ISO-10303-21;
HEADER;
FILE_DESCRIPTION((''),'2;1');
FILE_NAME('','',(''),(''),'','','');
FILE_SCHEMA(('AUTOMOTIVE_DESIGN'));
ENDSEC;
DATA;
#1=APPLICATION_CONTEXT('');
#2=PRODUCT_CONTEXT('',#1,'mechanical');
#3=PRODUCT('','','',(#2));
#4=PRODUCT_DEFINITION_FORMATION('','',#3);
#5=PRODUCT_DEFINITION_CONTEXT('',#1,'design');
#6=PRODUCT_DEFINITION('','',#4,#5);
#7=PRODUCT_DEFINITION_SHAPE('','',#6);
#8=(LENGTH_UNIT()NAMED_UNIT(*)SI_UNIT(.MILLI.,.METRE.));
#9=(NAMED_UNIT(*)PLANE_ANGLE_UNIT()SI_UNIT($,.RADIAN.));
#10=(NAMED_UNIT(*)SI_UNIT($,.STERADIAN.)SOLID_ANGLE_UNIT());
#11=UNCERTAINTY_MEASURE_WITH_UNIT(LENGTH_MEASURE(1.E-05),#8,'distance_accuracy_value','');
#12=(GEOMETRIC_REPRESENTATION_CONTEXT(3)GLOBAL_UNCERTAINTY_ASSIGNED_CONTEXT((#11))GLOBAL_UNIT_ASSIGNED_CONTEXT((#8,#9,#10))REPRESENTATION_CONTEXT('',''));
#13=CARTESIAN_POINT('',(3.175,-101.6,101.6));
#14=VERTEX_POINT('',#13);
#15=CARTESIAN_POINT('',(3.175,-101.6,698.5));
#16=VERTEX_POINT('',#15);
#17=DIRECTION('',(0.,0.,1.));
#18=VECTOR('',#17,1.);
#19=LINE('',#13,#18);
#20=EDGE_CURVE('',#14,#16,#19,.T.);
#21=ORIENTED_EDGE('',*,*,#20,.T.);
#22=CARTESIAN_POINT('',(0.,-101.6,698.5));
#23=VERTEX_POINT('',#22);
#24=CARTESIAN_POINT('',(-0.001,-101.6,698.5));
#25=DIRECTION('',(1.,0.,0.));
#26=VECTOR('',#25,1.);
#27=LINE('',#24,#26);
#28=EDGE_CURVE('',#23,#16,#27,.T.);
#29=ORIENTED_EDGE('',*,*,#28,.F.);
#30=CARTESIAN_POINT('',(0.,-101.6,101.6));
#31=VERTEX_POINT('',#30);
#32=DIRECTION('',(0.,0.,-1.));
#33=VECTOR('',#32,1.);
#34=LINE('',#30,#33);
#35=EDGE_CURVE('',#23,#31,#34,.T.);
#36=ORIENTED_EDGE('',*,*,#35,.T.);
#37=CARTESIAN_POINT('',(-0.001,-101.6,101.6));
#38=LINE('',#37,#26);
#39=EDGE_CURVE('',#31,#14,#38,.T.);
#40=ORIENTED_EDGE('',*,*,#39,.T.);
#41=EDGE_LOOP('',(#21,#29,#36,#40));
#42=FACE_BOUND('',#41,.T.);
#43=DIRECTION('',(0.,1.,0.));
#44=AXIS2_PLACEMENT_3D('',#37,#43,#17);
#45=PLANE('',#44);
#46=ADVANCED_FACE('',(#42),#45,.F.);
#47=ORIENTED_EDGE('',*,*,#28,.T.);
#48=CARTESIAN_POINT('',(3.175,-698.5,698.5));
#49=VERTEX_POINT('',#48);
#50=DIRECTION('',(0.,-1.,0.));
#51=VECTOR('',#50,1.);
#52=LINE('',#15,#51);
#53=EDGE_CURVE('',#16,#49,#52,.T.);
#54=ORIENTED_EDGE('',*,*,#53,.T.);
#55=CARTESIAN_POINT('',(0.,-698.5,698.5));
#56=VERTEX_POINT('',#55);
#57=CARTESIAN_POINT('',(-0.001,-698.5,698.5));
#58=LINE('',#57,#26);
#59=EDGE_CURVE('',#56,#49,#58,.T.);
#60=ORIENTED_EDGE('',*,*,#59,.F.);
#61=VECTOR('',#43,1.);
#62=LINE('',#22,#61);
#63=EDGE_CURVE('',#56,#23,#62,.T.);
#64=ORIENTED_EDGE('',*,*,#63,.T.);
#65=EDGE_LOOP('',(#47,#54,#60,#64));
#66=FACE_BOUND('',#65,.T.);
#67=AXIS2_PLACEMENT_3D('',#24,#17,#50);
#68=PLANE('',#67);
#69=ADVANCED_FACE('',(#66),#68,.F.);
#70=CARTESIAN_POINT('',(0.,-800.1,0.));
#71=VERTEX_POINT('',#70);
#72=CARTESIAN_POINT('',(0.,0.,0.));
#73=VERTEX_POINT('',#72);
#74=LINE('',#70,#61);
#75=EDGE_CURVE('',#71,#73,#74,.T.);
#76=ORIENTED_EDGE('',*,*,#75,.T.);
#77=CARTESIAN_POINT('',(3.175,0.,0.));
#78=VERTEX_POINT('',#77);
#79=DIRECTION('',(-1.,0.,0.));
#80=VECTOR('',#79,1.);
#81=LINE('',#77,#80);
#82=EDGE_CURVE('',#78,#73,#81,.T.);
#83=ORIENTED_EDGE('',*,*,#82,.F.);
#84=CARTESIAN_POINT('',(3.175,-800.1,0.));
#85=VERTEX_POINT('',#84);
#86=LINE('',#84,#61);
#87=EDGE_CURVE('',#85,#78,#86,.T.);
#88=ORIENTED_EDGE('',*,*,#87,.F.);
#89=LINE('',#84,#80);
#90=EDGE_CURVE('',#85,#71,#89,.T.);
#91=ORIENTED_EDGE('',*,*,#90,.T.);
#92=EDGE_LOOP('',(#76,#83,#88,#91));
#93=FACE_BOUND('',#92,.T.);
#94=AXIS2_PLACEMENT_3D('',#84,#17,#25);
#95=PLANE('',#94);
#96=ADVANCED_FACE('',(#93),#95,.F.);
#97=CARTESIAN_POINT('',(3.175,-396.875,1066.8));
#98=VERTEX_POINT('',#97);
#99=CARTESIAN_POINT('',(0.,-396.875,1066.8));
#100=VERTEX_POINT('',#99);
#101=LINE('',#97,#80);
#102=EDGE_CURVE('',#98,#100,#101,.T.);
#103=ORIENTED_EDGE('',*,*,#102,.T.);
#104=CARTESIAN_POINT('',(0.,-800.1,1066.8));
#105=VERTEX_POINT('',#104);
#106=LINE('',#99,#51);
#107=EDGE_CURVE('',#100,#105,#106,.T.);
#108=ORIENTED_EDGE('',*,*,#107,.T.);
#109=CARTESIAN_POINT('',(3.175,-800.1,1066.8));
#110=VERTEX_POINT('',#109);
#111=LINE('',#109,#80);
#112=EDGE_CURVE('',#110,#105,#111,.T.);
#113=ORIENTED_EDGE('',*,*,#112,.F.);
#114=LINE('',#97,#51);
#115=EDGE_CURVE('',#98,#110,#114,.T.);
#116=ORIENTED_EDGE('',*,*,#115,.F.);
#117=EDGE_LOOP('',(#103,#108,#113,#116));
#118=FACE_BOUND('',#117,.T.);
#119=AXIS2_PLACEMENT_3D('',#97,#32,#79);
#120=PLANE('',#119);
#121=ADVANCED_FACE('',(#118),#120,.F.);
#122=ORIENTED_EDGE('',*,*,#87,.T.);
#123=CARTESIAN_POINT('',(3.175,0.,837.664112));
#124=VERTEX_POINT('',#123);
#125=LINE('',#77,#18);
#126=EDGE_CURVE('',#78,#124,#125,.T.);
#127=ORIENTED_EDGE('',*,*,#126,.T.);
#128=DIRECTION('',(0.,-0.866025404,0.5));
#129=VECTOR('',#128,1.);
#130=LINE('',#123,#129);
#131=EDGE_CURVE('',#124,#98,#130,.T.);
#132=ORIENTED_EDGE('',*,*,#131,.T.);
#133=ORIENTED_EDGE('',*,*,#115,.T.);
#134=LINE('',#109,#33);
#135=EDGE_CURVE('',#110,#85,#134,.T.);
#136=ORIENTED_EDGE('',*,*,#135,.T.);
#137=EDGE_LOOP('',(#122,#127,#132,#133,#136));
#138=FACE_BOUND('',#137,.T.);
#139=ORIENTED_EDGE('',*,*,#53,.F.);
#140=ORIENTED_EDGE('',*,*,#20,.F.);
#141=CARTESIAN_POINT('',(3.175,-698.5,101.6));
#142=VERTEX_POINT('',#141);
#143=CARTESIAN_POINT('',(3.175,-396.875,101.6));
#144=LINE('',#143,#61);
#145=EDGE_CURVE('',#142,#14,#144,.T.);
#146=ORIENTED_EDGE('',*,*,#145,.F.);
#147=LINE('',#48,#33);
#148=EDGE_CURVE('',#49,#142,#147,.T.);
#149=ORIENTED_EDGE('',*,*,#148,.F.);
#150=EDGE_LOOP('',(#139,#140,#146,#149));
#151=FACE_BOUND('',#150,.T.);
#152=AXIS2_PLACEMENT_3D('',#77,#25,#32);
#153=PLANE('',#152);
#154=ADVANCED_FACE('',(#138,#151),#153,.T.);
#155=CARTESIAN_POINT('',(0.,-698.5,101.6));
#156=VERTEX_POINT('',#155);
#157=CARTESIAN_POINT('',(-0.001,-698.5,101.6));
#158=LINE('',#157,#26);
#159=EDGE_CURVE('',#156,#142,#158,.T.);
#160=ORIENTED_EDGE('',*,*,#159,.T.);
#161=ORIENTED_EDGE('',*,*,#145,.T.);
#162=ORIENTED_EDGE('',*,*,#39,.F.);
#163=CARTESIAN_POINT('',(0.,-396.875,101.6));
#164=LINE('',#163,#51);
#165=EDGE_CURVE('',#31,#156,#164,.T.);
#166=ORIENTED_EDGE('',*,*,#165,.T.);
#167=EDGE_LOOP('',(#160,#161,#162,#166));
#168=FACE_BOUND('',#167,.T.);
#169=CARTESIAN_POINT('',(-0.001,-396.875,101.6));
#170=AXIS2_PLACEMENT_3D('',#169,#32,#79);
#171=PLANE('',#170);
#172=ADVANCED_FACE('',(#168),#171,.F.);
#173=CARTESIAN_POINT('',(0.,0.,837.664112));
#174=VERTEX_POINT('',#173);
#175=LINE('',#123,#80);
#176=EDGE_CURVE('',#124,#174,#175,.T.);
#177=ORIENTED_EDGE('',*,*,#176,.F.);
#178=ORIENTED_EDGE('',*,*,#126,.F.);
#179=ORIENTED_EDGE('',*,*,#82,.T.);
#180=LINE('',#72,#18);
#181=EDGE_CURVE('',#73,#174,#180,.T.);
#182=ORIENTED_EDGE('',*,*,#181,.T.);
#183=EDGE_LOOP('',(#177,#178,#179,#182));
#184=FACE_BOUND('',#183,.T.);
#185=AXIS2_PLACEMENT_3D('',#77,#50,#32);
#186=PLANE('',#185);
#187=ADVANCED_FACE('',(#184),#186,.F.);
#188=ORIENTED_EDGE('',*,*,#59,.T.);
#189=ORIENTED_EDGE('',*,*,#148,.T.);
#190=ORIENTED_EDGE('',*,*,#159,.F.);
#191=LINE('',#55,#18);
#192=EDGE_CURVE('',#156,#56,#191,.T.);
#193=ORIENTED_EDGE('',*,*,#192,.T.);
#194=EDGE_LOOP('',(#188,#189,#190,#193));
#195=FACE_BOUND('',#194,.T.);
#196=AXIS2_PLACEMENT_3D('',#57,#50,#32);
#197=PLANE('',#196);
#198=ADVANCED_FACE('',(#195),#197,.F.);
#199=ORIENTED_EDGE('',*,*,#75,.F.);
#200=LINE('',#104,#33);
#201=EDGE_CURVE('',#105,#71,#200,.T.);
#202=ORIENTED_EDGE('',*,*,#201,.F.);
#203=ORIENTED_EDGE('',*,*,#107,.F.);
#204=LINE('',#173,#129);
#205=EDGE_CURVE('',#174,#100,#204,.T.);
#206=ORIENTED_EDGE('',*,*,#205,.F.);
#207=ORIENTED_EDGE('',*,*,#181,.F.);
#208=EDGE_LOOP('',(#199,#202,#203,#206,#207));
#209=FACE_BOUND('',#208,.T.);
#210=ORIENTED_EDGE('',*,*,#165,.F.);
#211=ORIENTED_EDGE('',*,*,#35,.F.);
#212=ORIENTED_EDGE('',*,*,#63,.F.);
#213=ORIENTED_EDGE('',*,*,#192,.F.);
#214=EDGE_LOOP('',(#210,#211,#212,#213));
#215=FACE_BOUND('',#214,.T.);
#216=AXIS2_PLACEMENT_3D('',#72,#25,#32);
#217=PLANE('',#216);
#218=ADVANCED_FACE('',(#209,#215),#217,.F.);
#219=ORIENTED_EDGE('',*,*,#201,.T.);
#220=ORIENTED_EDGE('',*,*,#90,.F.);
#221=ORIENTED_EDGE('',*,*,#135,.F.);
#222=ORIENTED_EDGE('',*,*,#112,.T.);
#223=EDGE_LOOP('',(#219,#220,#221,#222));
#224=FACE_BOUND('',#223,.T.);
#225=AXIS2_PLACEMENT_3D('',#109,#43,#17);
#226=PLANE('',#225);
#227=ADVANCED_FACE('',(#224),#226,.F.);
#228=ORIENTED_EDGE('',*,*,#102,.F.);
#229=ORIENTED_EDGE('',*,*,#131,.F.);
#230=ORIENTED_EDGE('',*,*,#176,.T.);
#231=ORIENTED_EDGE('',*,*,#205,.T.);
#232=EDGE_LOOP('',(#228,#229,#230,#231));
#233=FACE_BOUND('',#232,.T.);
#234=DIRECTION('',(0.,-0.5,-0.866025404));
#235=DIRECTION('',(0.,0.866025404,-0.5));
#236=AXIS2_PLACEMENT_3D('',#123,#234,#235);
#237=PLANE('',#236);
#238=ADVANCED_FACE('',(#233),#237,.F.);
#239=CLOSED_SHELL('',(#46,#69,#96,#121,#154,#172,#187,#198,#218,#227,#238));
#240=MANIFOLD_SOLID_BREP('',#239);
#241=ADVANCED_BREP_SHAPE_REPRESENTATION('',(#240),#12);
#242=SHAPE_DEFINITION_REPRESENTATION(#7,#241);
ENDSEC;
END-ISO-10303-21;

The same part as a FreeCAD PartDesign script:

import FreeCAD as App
import Part
import Sketcher
from FreeCAD import Vector
Q = App.Units.Quantity


def add_polygon(sketch, points):
    """Adds a closed chain of lines whose ends are joined by coincident constraints."""
    first, n = sketch.GeometryCount, len(points)
    for a, b in zip(points, points[1:] + points[:1]):
        sketch.addGeometry(Part.LineSegment(App.Vector(*a, 0), App.Vector(*b, 0)), False)
    for i in range(n):
        sketch.addConstraint(Sketcher.Constraint("Coincident", first + i, 2, first + (i + 1) % n, 1))

doc = App.newDocument("Part")
body = doc.addObject("PartDesign::Body", "Body")

sketch1 = body.newObject("Sketcher::SketchObject", "Sketch")
sketch1.AttachmentSupport = (doc.getObject("YZ_Plane"), [""])
sketch1.MapMode = "FlatFace"
add_polygon(sketch1, [(0, 0), (0, 837.664112), (-396.875, 1066.8), (-800.1, 1066.8), (-800.1, 0)])
sketch1.addConstraint([
    Sketcher.Constraint("Vertical", 0),
    Sketcher.Constraint("Horizontal", 2),
    Sketcher.Constraint("Vertical", 3),
    Sketcher.Constraint("Horizontal", 4),
    Sketcher.Constraint("Coincident", 4, 2, -1, 1),
    Sketcher.Constraint("DistanceY", 3, 2, 3, 1, Q("42 in")),
    Sketcher.Constraint("DistanceX", 4, 1, 4, 2, Q("31.5 in")),
    Sketcher.Constraint("Angle", 1, Q("150 deg")),
    Sketcher.Constraint("DistanceX", 2, 2, 2, 1, Q("15.875 in")),
])
pad1 = body.newObject("PartDesign::Pad", "Pad")
pad1.Profile = sketch1
pad1.Length = Q("0.125 in")

sketch2 = body.newObject("Sketcher::SketchObject", "Sketch001")
sketch2.AttachmentSupport = (doc.getObject("YZ_Plane"), [""])
sketch2.MapMode = "FlatFace"
sketch2.AttachmentOffset = App.Placement(Vector(0, 0, 0.125 * 25.4), App.Rotation())
add_polygon(sketch2, [(-101.6, 101.6), (-101.6, 698.5), (-698.5, 698.5), (-698.5, 101.6)])
sketch2.addConstraint([
    Sketcher.Constraint("Vertical", 0),
    Sketcher.Constraint("Horizontal", 1),
    Sketcher.Constraint("Vertical", 2),
    Sketcher.Constraint("Horizontal", 3),
    Sketcher.Constraint("Equal", 3, 0),
    Sketcher.Constraint("DistanceX", 1, 2, 1, 1, Q("23.5 in")),
    Sketcher.Constraint("DistanceX", 0, 2, -1, 1, Q("4 in")),
    Sketcher.Constraint("DistanceY", -1, 1, 2, 2, Q("4 in")),
])
pocket1 = body.newObject("PartDesign::Pocket", "Pocket")
pocket1.Profile = sketch2
pocket1.Type = "UpToFirst"

doc.recompute()
